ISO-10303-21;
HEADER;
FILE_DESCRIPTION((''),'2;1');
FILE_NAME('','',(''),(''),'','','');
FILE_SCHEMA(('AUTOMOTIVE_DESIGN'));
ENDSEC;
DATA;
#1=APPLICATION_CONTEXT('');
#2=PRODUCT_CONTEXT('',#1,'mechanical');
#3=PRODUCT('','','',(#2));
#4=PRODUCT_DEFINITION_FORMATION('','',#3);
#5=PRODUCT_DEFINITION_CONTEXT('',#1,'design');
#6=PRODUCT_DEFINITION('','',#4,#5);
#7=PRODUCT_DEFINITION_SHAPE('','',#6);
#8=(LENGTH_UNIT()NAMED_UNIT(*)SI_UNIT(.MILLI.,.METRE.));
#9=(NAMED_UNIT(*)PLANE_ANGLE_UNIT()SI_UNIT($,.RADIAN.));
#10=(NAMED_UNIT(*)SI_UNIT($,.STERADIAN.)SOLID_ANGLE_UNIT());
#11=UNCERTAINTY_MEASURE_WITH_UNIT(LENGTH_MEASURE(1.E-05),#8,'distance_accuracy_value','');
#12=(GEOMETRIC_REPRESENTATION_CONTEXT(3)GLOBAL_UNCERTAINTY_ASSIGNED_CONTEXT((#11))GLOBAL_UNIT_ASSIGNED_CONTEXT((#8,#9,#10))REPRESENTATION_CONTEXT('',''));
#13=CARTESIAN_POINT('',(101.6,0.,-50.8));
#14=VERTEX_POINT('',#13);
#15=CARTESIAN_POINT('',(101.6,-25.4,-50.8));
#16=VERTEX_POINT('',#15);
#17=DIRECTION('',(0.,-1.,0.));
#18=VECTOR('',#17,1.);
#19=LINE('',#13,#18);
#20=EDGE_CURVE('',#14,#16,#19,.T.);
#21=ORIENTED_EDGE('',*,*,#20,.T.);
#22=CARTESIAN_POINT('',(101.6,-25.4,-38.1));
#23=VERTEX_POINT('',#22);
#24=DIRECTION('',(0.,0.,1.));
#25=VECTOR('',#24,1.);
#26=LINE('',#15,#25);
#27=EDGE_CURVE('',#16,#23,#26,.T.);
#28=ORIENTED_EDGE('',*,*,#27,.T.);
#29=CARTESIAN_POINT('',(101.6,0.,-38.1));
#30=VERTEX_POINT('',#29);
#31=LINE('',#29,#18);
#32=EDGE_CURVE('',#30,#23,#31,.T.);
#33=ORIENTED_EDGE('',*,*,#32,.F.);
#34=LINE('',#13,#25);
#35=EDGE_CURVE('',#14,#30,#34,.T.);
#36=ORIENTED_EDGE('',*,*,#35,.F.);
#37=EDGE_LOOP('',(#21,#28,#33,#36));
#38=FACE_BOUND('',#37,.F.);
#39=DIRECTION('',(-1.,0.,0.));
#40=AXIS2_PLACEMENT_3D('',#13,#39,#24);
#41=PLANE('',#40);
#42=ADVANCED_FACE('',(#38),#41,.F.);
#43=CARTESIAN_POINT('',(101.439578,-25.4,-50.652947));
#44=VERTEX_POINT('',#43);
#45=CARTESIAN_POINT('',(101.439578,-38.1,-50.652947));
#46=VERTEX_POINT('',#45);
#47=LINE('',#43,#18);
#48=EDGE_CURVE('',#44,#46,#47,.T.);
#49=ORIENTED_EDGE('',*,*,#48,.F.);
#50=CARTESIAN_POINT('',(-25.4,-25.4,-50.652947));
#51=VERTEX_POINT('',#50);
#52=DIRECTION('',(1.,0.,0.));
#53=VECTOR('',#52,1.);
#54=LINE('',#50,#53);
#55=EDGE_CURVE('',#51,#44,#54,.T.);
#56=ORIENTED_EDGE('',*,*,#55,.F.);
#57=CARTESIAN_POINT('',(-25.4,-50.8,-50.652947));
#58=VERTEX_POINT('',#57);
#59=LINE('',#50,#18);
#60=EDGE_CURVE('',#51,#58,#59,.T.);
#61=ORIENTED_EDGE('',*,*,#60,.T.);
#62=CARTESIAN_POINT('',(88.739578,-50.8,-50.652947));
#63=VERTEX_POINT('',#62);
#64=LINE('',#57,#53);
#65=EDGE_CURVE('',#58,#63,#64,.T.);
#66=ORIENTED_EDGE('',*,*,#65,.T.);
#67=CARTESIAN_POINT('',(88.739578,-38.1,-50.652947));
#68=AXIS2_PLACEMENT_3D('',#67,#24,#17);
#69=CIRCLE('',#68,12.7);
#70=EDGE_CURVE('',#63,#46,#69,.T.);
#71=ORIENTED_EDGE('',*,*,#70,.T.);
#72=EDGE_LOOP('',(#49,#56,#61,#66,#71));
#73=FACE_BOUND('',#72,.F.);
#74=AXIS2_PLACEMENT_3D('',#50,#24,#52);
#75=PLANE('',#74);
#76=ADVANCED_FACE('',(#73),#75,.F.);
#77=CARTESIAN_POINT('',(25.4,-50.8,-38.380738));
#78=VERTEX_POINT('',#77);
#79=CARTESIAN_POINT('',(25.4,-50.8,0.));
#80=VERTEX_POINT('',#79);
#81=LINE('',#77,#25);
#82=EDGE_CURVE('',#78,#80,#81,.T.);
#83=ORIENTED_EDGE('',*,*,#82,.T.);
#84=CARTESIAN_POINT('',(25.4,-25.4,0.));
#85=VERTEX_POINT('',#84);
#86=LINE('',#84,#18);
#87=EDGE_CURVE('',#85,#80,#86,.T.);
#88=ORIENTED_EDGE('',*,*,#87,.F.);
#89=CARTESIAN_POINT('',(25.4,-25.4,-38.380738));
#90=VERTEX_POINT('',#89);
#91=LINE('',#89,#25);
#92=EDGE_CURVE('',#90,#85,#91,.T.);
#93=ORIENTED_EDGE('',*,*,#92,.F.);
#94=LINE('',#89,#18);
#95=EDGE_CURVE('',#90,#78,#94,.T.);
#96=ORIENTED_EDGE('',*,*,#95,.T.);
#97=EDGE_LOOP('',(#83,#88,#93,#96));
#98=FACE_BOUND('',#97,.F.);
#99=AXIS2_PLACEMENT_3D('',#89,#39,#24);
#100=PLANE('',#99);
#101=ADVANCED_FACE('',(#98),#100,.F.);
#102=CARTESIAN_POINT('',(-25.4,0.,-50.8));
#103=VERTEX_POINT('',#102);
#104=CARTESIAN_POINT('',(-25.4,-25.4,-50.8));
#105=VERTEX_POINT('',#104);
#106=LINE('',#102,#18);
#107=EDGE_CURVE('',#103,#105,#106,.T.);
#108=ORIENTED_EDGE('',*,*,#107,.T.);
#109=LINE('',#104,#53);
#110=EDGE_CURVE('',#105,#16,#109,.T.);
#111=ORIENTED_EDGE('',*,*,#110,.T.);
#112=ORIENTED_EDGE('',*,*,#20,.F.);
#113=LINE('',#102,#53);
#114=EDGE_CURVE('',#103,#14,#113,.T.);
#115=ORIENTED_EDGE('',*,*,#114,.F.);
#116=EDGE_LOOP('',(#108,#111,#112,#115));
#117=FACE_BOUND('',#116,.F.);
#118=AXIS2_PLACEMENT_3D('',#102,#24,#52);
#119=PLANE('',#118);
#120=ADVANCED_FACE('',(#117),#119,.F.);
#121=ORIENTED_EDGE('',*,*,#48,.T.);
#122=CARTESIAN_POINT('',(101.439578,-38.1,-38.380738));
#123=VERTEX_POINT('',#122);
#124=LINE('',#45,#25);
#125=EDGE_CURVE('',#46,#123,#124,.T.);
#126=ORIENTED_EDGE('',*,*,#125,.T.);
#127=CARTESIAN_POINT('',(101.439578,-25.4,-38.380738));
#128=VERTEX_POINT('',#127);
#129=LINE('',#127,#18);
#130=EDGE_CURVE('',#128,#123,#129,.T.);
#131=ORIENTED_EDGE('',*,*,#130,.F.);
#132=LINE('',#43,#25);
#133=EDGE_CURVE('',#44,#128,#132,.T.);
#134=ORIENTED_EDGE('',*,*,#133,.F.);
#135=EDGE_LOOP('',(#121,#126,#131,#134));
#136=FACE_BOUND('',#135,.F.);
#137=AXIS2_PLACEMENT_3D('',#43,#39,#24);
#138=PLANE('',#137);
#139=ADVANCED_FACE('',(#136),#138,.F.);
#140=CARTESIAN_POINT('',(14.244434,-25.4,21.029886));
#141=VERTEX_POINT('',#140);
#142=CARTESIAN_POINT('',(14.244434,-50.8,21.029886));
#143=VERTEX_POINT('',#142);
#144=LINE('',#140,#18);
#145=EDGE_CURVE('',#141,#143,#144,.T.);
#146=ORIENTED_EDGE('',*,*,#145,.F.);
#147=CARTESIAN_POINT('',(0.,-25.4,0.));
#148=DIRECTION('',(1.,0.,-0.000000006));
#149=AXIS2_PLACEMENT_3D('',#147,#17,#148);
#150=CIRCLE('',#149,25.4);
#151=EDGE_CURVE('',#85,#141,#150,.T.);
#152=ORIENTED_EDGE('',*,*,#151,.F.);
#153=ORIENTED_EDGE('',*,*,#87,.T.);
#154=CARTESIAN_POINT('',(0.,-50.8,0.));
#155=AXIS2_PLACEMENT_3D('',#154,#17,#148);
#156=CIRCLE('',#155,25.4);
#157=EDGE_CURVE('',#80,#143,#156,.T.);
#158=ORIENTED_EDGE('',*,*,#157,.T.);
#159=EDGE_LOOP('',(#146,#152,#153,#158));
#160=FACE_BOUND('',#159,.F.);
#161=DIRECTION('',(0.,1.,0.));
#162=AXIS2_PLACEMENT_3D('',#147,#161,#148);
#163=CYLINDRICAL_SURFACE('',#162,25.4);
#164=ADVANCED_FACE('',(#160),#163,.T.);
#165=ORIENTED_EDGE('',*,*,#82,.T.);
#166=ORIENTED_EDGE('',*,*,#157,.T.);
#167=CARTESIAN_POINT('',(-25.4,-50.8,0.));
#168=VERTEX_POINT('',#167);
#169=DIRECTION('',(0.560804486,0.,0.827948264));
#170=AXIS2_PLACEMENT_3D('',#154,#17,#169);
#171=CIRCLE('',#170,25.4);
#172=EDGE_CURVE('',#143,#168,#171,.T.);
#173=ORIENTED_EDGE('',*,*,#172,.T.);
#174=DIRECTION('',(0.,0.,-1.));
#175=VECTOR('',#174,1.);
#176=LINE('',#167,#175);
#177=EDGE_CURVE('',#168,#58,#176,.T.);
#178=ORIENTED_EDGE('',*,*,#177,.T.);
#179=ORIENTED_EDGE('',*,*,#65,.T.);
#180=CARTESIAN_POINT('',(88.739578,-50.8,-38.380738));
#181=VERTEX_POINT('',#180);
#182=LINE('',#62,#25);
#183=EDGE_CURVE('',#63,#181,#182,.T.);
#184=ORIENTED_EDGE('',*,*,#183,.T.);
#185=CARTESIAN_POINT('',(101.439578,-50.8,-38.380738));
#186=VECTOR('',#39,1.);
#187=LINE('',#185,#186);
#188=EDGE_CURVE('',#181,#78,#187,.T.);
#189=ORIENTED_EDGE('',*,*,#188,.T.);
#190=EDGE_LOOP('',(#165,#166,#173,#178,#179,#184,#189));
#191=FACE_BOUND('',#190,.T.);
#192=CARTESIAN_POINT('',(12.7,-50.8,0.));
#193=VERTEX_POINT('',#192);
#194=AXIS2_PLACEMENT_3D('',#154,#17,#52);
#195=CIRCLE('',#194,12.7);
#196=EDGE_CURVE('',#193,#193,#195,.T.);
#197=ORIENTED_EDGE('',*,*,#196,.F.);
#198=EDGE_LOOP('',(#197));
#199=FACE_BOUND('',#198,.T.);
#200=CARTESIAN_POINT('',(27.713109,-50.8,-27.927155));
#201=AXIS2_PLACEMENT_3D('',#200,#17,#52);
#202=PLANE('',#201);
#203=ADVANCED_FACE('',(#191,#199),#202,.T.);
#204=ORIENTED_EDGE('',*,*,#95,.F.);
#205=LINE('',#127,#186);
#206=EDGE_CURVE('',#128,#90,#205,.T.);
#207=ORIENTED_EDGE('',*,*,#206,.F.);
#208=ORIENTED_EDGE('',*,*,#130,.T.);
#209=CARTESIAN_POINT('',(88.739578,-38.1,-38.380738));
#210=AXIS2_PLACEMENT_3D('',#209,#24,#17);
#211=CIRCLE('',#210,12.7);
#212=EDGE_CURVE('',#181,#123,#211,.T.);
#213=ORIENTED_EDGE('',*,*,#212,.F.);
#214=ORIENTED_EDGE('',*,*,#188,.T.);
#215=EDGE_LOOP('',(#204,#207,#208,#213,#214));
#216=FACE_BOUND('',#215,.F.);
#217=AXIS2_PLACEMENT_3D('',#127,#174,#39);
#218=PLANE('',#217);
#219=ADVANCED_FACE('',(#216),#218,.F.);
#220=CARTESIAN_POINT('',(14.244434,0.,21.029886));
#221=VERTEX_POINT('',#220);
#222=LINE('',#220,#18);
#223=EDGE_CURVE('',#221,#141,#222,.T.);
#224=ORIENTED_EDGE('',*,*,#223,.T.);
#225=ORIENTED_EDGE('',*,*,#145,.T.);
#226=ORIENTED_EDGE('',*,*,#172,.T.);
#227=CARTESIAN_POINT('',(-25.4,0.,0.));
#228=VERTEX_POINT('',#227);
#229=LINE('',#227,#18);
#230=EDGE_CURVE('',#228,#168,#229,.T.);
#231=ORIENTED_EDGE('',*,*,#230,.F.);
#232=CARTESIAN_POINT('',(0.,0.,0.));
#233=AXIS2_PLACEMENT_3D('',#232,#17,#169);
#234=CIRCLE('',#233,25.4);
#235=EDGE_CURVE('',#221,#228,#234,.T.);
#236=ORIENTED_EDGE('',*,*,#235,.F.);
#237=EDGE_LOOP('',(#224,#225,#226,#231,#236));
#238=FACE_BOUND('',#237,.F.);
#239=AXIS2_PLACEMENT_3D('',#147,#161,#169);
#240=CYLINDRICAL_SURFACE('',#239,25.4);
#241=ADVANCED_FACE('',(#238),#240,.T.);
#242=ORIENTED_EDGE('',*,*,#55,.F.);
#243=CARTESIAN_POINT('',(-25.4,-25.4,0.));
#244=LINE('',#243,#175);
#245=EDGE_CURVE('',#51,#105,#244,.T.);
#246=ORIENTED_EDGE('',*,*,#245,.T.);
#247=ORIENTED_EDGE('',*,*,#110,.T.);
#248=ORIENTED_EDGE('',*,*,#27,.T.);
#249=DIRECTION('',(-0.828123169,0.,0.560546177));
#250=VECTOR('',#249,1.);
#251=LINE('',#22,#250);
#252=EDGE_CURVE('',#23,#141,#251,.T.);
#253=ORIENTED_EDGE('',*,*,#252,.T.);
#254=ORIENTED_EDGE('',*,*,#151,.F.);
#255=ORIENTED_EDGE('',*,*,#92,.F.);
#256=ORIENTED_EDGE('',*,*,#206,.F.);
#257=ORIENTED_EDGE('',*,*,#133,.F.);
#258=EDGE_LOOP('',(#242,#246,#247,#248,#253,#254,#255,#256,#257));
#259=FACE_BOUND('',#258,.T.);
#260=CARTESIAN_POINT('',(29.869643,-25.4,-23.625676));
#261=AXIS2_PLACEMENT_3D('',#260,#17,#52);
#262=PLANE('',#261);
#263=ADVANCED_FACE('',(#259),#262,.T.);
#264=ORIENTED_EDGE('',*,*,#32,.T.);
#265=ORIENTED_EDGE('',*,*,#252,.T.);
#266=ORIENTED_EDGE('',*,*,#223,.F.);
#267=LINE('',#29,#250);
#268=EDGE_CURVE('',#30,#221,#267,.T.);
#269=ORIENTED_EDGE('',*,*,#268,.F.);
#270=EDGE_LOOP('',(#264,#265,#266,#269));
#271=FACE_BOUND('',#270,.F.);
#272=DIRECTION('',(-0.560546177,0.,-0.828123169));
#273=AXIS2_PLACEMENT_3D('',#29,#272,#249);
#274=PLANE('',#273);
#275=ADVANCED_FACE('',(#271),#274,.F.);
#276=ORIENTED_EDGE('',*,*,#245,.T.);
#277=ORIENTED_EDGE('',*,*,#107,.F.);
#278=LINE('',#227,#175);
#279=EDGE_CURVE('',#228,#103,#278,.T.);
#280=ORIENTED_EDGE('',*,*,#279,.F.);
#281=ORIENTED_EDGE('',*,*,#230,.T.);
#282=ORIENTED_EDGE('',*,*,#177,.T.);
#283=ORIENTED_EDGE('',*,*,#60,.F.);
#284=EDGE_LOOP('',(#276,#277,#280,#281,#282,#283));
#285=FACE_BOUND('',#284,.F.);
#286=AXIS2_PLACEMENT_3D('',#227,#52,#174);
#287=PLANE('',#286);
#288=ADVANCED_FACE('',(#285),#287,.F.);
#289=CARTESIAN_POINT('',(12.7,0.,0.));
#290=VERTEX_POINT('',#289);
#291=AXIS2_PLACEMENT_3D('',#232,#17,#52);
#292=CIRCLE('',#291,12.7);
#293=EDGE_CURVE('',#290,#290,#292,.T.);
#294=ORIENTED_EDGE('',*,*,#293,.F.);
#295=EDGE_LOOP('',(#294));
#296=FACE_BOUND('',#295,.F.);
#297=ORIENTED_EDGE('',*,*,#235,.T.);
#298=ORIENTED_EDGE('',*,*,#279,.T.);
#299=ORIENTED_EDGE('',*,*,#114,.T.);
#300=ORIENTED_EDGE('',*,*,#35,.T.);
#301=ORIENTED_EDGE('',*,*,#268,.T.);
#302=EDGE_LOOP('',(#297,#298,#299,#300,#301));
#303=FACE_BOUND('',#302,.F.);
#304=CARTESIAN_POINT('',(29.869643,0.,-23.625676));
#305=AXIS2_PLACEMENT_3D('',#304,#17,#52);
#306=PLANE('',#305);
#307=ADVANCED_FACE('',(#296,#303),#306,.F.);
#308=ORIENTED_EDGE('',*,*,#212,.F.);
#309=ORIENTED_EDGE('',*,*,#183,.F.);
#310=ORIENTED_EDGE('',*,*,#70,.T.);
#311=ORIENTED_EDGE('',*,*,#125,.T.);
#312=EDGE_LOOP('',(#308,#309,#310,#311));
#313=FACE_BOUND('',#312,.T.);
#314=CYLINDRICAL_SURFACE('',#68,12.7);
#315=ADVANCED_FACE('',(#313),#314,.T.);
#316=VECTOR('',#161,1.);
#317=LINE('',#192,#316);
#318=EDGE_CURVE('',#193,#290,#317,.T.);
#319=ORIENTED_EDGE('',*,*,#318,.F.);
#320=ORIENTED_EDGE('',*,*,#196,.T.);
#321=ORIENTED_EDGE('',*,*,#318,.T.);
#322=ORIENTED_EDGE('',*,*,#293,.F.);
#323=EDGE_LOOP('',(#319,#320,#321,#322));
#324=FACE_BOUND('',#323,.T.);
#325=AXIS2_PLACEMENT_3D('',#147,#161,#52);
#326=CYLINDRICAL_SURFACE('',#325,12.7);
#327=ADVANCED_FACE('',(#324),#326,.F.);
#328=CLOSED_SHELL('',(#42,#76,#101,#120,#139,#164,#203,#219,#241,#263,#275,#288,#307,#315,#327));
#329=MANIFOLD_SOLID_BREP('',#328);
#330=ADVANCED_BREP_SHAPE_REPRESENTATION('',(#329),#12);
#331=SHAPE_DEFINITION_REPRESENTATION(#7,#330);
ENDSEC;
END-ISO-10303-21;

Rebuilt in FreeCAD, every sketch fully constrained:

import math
import FreeCAD as App
import Part
import Sketcher
from FreeCAD import Vector
Q = App.Units.Quantity


def edges_at(feature, points):
    """Names of the edges that pass closest to the given points."""
    edges = feature.Shape.Edges
    near = lambda p: min(range(len(edges)), key=lambda i: edges[i].distToShape(Part.Vertex(*p))[0])
    return sorted({f"Edge{near(p) + 1}" for p in points})

doc = App.newDocument("Part")
body = doc.addObject("PartDesign::Body", "Body")

# Sketch on XZ plane
sketch1 = doc.addObject("Sketcher::SketchObject", "Sketch")
body.addObject(sketch1)
sketch1.AttachmentSupport = (doc.XZ_Plane, [""])
sketch1.MapMode = "FlatFace"
sketch1.addGeometry([
    Part.LineSegment(Vector(102, -38, 0), Vector(14, 21, 0)),  # 0
    Part.ArcOfCircle(Part.Circle(Vector(0, 0, 0), Vector(0, 0, 1), 25), math.radians(56), math.radians(180)),  # 1
    Part.LineSegment(Vector(-25, 0, 0), Vector(-25, -51, 0)),  # 2
    Part.LineSegment(Vector(-25, -51, 0), Vector(102, -51, 0)),  # 3
    Part.LineSegment(Vector(102, -51, 0), Vector(102, -38, 0)),  # 4
    Part.Circle(Vector(0, 0, 0), Vector(0, 0, 1), 13),  # 5
], False)
sketch1.addConstraint([
    Sketcher.Constraint("Coincident", 0, 2, 1, 1),
    Sketcher.Constraint("Tangent", 1, 2, 2, 1),
    Sketcher.Constraint("Coincident", 2, 2, 3, 1),
    Sketcher.Constraint("Coincident", 3, 2, 4, 1),
    Sketcher.Constraint("Coincident", 4, 2, 0, 1),
    Sketcher.Constraint("Vertical", 2),
    Sketcher.Constraint("Horizontal", 3),
    Sketcher.Constraint("Vertical", 4),
    Sketcher.Constraint("Coincident", 1, 3, -1, 1),
    Sketcher.Constraint("Coincident", 5, 3, -1, 1),
    Sketcher.Constraint("Diameter", 5, Q("1 in")),
    Sketcher.Constraint("Radius", 1, Q("1 in")),
    Sketcher.Constraint("DistanceX", 3, 1, 3, 2, Q("5 in")),
    Sketcher.Constraint("DistanceY", 2, 2, 2, 1, Q("2 in")),
    Sketcher.Constraint("DistanceY", 4, 1, 4, 2, Q("0.5 in")),
    Sketcher.Constraint("Distance", 0, Q("4.153 in")),
])
pad1 = doc.addObject("PartDesign::Pad", "Pad")
body.addObject(pad1)
pad1.Profile = sketch1
pad1.Length = Q("1 in")

# Sketch on XZ plane
sketch2 = doc.addObject("Sketcher::SketchObject", "Sketch001")
body.addObject(sketch2)
sketch2.AttachmentSupport = (doc.XZ_Plane, [""])
sketch2.MapMode = "FlatFace"
sketch2.AttachmentOffset = App.Placement(Vector(0, 0, 1 * 25.4), App.Rotation())
sketch2.addGeometry([
    Part.LineSegment(Vector(25, -38, 0), Vector(25, 0, 0)),  # 0
    Part.ArcOfCircle(Part.Circle(Vector(0, 0, 0), Vector(0, 0, 1), 25), math.radians(0), math.radians(56)),  # 1
    Part.ArcOfCircle(Part.Circle(Vector(0, 0, 0), Vector(0, 0, 1), 25), math.radians(56), math.radians(180)),  # 2
    Part.LineSegment(Vector(-25, 0, 0), Vector(-25, -51, 0)),  # 3
    Part.LineSegment(Vector(-25, -51, 0), Vector(101, -51, 0)),  # 4
    Part.LineSegment(Vector(101, -51, 0), Vector(101, -38, 0)),  # 5
    Part.LineSegment(Vector(101, -38, 0), Vector(25, -38, 0)),  # 6
    Part.Circle(Vector(0, 0, 0), Vector(0, 0, 1), 13),  # 7
], False)
sketch2.addConstraint([
    Sketcher.Constraint("Tangent", 0, 2, 1, 1),
    Sketcher.Constraint("Tangent", 1, 2, 2, 1),
    Sketcher.Constraint("Tangent", 2, 2, 3, 1),
    Sketcher.Constraint("Coincident", 3, 2, 4, 1),
    Sketcher.Constraint("Coincident", 4, 2, 5, 1),
    Sketcher.Constraint("Coincident", 5, 2, 6, 1),
    Sketcher.Constraint("Coincident", 6, 2, 0, 1),
    Sketcher.Constraint("Vertical", 0),
    Sketcher.Constraint("Vertical", 3),
    Sketcher.Constraint("Horizontal", 4),
    Sketcher.Constraint("Vertical", 5),
    Sketcher.Constraint("Horizontal", 6),
    Sketcher.Constraint("Coincident", 1, 3, -1, 1),
    Sketcher.Constraint("Coincident", 7, 3, -1, 1),
    Sketcher.Constraint("Equal", 1, 2),
    Sketcher.Constraint("Diameter", 7, Q("1 in")),
    Sketcher.Constraint("Radius", 1, Q("1 in")),
    Sketcher.Constraint("DistanceX", 6, 2, 6, 1, Q("76.039578 mm")),
    Sketcher.Constraint("DistanceY", 5, 1, 5, 2, Q("12.272209 mm")),
    Sketcher.Constraint("DistanceY", 0, 1, 0, 2, Q("38.380738 mm")),
    Sketcher.Constraint("DistanceX", -1, 1, 1, 2, Q("14.244434 mm")),
])
pad2 = doc.addObject("PartDesign::Pad", "Pad001")
body.addObject(pad2)
pad2.Profile = sketch2
pad2.Length = Q("1 in")
doc.recompute()

fillet = doc.addObject("PartDesign::Fillet", "Fillet")
body.addObject(fillet)
fillet.Base = (pad2, edges_at(pad2, [(101.44, -50.8, -44.517)]))
fillet.Radius = Q("0.5 in")

doc.recompute()
